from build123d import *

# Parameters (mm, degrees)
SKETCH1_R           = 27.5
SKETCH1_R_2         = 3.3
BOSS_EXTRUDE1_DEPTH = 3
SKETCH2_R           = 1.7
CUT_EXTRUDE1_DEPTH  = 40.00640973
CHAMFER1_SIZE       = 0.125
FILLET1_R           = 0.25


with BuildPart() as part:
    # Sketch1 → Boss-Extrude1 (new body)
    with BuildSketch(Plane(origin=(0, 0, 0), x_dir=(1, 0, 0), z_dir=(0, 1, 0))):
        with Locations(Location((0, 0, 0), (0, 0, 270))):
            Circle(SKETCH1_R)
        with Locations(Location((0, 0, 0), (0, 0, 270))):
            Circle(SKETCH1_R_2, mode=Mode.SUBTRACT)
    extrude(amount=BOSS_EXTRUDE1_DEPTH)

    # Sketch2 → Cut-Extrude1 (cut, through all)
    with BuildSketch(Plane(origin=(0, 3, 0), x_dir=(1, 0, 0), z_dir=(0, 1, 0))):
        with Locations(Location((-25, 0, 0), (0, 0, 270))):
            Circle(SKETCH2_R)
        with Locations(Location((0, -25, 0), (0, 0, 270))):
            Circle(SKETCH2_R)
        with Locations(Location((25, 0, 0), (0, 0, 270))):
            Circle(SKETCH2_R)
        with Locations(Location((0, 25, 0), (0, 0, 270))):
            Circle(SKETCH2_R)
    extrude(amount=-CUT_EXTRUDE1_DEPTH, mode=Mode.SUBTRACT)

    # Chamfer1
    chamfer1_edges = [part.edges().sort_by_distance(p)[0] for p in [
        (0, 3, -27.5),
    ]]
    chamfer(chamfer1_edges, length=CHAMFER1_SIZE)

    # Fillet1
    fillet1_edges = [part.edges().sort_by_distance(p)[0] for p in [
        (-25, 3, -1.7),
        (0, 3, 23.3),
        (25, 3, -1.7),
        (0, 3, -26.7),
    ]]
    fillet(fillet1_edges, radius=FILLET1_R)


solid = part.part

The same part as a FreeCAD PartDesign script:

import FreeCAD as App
import Part
import Sketcher

V = App.Vector


def edges_at(feature, points):
    """Names of the edges that pass closest to the given points."""
    edges = feature.Shape.Edges
    near = lambda p: min(range(len(edges)), key=lambda i: edges[i].distToShape(Part.Vertex(*p))[0])
    return sorted({f"Edge{near(p) + 1}" for p in points})

doc = App.newDocument("Part")
params = doc.addObject("Spreadsheet::Sheet", "Params")
for row, (alias, value) in enumerate([
    ("sketch1_diameter", "55 mm"),
    ("sketch1_diameter2", "6.6 mm"),
    ("pad1_length", "3 mm"),
    ("sketch2_diameter", "3.4 mm"),
    ("chamfer_size", "0.125 mm"),
    ("fillet_radius", "0.25 mm"),
], start=1):
    params.set(f"A{row}", alias)
    params.set(f"B{row}", "=" + value)
    params.setAlias(f"B{row}", alias)

body = doc.addObject("PartDesign::Body", "Body")

# Sketch on XZ plane
sketch1 = body.newObject("Sketcher::SketchObject", "Sketch")
sketch1.AttachmentSupport = (doc.getObject("XZ_Plane"), [""])
sketch1.MapMode = "FlatFace"
sketch1.addGeometry([
    Part.Circle(V(0, 0, 0), V(0, 0, 1), 27.5),
    Part.Circle(V(0, 0, 0), V(0, 0, 1), 3.3),
], False)
sketch1.addConstraint([
    Sketcher.Constraint("Coincident", 0, 3, -1, 1),
    Sketcher.Constraint("Coincident", 1, 3, -1, 1),
    Sketcher.Constraint("Diameter", 0, 55.0),
    Sketcher.Constraint("Diameter", 1, 6.6),
])
sketch1.setExpression("Constraints[2]", "Params.sketch1_diameter")
sketch1.setExpression("Constraints[3]", "Params.sketch1_diameter2")
pad1 = body.newObject("PartDesign::Pad", "Pad")
pad1.Profile = sketch1
pad1.setExpression("Length", "Params.pad1_length")
pad1.Reversed = True

# Sketch on XZ plane
sketch2 = body.newObject("Sketcher::SketchObject", "Sketch001")
sketch2.AttachmentSupport = (doc.getObject("XZ_Plane"), [""])
sketch2.MapMode = "FlatFace"
sketch2.AttachmentOffset = App.Placement(V(0, 0, -3), App.Rotation())
sketch2.addGeometry([
    Part.Circle(V(-25, 0, 0), V(0, 0, 1), 1.7),
    Part.Circle(V(0, 25, 0), V(0, 0, 1), 1.7),
    Part.Circle(V(25, 0, 0), V(0, 0, 1), 1.7),
    Part.Circle(V(0, -25, 0), V(0, 0, 1), 1.7),
], False)
sketch2.addConstraint([
    Sketcher.Constraint("Equal", 0, 1),
    Sketcher.Constraint("Equal", 1, 2),
    Sketcher.Constraint("Equal", 2, 3),
    Sketcher.Constraint("Symmetric", 0, 3, 2, 3, -1, 1),
    Sketcher.Constraint("Symmetric", 1, 3, 3, 3, -1, 1),
    Sketcher.Constraint("PointOnObject", 0, 3, -1),
    Sketcher.Constraint("PointOnObject", 1, 3, -2),
    Sketcher.Constraint("Diameter", 0, 3.4),
    Sketcher.Constraint("DistanceX", 0, 3, -1, 1, 25.0),
    Sketcher.Constraint("DistanceY", -1, 1, 1, 3, 25.0),
])
sketch2.setExpression("Constraints[7]", "Params.sketch2_diameter")
pocket1 = body.newObject("PartDesign::Pocket", "Pocket")
pocket1.Profile = sketch2
pocket1.Type = "ThroughAll"
pocket1.Reversed = True
doc.recompute()

chamfer = body.newObject("PartDesign::Chamfer", "Chamfer")
chamfer.Base = (pocket1, edges_at(pocket1, [(0, 3, -27.5)]))
chamfer.setExpression("Size", "Params.chamfer_size")
doc.recompute()

fillet = body.newObject("PartDesign::Fillet", "Fillet")
fillet.Base = (chamfer, edges_at(chamfer, [
    (-25, 3, -1.7),
    (0, 3, 23.3),
    (25, 3, -1.7),
    (0, 3, -26.7),
]))
fillet.setExpression("Radius", "Params.fillet_radius")

doc.recompute()
